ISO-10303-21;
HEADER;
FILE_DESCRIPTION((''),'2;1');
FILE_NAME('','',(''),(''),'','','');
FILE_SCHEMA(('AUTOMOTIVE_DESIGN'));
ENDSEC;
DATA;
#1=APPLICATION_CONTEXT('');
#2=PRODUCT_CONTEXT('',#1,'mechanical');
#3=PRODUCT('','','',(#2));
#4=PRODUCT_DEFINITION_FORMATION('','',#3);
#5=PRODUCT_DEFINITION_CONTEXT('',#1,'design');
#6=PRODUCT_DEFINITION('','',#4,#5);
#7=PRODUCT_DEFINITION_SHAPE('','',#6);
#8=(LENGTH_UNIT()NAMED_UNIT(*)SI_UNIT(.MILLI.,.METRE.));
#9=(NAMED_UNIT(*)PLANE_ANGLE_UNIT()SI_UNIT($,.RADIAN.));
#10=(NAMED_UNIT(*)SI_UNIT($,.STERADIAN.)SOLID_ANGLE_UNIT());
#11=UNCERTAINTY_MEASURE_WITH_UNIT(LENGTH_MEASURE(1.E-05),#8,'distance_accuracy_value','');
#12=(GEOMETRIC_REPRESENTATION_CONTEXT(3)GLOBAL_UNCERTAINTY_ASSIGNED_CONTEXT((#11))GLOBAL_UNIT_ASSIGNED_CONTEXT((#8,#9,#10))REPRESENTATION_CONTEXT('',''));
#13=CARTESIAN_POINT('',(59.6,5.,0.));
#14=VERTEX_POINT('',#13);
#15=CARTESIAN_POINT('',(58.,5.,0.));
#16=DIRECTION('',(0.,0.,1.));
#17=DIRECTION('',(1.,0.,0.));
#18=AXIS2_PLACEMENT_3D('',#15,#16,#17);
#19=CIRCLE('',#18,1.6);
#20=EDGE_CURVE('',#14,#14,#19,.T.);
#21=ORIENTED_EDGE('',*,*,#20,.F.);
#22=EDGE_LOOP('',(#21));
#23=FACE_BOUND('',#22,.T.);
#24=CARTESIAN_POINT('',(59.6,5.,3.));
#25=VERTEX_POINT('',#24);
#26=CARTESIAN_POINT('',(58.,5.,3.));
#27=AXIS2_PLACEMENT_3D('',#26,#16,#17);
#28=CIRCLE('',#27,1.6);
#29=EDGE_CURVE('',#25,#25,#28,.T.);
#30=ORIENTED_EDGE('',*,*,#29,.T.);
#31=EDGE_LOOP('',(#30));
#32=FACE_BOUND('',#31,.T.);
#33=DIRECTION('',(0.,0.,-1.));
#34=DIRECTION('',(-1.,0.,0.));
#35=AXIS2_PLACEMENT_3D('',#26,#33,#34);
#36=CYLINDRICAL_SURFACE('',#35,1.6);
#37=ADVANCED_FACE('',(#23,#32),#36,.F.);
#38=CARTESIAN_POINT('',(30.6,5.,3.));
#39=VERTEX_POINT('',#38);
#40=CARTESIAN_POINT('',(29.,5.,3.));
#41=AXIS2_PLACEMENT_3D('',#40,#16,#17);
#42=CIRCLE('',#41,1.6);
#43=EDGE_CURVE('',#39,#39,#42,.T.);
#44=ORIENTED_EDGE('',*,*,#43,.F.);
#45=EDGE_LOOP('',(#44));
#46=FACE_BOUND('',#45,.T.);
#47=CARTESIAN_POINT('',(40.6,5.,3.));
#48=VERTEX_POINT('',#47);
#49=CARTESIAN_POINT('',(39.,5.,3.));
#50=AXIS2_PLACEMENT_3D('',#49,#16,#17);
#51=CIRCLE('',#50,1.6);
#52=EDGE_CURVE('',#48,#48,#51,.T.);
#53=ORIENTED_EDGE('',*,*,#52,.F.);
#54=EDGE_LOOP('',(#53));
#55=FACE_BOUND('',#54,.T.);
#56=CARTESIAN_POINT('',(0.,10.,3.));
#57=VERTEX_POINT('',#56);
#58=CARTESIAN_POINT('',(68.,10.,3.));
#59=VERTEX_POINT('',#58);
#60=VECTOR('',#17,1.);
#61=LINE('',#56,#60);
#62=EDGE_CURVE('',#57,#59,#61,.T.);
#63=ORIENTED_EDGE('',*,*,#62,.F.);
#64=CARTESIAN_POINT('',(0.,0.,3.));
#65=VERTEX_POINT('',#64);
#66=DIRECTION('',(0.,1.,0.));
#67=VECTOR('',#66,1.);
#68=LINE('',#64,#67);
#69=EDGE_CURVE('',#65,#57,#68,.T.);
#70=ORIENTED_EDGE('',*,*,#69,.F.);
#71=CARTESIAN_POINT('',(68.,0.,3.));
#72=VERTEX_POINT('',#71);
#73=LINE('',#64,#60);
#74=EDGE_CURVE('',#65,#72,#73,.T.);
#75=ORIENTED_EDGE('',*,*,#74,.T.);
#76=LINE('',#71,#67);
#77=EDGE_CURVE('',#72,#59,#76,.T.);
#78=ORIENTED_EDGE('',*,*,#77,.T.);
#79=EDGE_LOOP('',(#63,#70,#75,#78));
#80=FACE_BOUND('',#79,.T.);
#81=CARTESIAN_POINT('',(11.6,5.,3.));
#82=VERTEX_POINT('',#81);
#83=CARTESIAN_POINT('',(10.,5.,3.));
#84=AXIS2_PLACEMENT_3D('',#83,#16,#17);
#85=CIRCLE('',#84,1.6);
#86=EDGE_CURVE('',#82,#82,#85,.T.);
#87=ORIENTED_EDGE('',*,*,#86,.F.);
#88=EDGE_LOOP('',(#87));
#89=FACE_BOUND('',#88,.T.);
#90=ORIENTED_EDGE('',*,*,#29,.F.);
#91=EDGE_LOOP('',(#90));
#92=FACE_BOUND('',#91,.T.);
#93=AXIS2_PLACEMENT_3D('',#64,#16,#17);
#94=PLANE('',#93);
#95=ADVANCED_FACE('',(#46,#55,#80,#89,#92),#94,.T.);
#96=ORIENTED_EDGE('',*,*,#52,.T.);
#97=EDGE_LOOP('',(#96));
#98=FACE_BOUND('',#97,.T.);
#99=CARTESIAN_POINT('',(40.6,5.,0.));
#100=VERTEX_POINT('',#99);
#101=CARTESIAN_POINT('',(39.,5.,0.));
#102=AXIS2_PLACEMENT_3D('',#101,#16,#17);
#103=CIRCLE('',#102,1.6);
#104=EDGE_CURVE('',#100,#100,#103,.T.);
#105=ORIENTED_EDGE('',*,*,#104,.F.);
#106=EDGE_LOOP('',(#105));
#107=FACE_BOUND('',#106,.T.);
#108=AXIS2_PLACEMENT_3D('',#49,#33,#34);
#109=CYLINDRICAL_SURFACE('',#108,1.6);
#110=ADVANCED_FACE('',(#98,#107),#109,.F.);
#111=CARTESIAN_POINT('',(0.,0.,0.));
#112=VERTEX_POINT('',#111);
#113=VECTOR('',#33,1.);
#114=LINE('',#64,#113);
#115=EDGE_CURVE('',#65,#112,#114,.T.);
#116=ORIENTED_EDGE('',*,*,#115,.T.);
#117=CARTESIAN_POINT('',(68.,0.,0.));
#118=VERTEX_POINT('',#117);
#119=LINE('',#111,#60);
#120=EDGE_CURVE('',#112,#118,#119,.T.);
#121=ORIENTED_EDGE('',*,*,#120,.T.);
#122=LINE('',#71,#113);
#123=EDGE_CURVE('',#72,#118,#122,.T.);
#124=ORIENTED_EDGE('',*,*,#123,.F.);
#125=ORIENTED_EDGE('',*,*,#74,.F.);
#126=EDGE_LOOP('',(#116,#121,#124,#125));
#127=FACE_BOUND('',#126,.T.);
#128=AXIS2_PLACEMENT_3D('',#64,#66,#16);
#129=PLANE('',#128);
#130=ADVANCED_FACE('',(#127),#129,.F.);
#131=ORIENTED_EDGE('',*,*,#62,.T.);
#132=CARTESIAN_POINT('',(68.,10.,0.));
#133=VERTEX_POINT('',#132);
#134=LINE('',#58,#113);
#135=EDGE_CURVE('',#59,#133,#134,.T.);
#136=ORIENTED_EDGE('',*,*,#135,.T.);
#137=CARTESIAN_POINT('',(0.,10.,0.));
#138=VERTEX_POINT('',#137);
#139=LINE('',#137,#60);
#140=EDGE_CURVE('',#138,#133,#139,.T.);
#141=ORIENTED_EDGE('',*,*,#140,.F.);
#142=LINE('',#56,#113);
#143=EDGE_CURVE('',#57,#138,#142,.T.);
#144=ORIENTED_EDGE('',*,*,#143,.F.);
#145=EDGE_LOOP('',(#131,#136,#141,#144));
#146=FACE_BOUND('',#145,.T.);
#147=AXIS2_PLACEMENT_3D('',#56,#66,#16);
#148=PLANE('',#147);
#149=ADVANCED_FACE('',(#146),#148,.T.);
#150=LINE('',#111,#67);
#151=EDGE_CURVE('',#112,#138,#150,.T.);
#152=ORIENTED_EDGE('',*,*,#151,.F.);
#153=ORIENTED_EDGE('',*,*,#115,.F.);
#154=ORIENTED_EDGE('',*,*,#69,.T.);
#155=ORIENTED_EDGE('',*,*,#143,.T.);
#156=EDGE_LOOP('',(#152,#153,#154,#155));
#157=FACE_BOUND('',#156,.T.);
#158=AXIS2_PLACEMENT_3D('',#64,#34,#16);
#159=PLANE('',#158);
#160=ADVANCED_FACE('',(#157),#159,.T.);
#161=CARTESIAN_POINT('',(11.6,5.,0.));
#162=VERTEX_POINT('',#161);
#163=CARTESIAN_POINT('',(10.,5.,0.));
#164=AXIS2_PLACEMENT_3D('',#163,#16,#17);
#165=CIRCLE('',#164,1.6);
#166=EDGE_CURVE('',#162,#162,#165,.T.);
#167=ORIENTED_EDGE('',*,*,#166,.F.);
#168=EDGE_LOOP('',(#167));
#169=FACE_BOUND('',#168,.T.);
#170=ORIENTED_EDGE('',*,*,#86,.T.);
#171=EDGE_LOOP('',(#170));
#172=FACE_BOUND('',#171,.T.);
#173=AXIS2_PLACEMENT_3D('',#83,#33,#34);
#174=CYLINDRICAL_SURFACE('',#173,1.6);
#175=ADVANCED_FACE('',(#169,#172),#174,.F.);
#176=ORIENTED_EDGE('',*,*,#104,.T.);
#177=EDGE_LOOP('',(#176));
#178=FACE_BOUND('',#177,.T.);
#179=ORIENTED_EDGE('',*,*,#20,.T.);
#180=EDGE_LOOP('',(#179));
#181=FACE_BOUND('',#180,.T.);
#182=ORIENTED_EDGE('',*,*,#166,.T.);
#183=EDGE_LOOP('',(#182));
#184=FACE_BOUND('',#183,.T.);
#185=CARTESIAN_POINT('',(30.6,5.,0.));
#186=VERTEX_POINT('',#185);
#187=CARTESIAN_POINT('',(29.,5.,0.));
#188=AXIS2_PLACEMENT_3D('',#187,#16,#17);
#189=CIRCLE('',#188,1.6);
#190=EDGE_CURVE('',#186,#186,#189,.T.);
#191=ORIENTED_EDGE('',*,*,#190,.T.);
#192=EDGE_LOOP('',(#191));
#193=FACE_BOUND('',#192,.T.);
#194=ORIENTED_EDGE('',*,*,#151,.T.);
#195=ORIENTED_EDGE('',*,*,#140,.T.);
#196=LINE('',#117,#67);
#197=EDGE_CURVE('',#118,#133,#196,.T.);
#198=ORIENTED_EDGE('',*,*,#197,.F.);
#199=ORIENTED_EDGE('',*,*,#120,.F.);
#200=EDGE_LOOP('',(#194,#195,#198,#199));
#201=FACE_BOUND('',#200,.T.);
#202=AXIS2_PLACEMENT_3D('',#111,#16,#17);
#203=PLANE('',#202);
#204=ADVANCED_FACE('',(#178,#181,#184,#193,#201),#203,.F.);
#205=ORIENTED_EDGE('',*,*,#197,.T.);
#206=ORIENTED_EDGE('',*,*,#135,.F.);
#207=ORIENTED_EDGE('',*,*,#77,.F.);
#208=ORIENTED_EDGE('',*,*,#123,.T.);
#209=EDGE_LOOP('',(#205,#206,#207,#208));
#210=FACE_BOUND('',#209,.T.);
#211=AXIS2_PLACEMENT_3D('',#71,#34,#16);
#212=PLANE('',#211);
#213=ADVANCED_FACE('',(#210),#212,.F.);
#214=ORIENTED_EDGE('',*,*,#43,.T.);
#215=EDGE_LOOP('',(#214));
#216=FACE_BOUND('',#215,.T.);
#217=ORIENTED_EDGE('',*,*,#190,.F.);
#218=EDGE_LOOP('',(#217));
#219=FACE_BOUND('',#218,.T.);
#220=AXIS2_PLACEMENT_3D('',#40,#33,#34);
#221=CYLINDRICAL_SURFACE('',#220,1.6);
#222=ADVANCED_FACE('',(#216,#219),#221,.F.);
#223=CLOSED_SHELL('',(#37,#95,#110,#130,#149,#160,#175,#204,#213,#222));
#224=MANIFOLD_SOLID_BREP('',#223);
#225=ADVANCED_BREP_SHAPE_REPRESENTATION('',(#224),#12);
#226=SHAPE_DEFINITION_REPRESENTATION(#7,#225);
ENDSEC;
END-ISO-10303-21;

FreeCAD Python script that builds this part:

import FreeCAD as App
import Part
import Sketcher
from FreeCAD import Vector
Q = App.Units.Quantity


def add_polygon(sketch, points):
    """Adds a closed chain of lines whose ends are joined by coincident constraints."""
    first, n = sketch.GeometryCount, len(points)
    for a, b in zip(points, points[1:] + points[:1]):
        sketch.addGeometry(Part.LineSegment(App.Vector(*a, 0), App.Vector(*b, 0)), False)
    for i in range(n):
        sketch.addConstraint(Sketcher.Constraint("Coincident", first + i, 2, first + (i + 1) % n, 1))

doc = App.newDocument("Part")
body = doc.addObject("PartDesign::Body", "Body")

# Sketch on XY plane
sketch1 = doc.addObject("Sketcher::SketchObject", "Sketch")
body.addObject(sketch1)
sketch1.AttachmentSupport = (doc.XY_Plane, [""])
sketch1.MapMode = "FlatFace"
add_polygon(sketch1, [(0, 10), (0, 0), (68, 0), (68, 10)])  # lines 0-3
sketch1.addGeometry(Part.Circle(Vector(10, 5, 0), Vector(0, 0, 1), 1.6), False)  # 4
sketch1.addGeometry(Part.Circle(Vector(29, 5, 0), Vector(0, 0, 1), 1.6), False)  # 5
sketch1.addGeometry(Part.Circle(Vector(39, 5, 0), Vector(0, 0, 1), 1.6), False)  # 6
sketch1.addGeometry(Part.Circle(Vector(58, 5, 0), Vector(0, 0, 1), 1.6), False)  # 7
sketch1.addConstraint(Sketcher.Constraint("Vertical", 0))
sketch1.addConstraint(Sketcher.Constraint("Horizontal", 1))
sketch1.addConstraint(Sketcher.Constraint("Vertical", 2))
sketch1.addConstraint(Sketcher.Constraint("Horizontal", 3))
sketch1.addConstraint(Sketcher.Constraint("Coincident", 0, 2, -1, 1))
sketch1.addConstraint(Sketcher.Constraint("Equal", 4, 5))
sketch1.addConstraint(Sketcher.Constraint("Equal", 5, 6))
sketch1.addConstraint(Sketcher.Constraint("Equal", 6, 7))
sketch1.addConstraint(Sketcher.Constraint("Horizontal", 4, 3, 5, 3))
sketch1.addConstraint(Sketcher.Constraint("Horizontal", 5, 3, 6, 3))
sketch1.addConstraint(Sketcher.Constraint("Horizontal", 6, 3, 7, 3))
sketch1.addConstraint(Sketcher.Constraint("Diameter", 4, Q("3.2 mm")))
sketch1.addConstraint(Sketcher.Constraint("DistanceX", 1, 1, 1, 2, Q("68 mm")))
sketch1.addConstraint(Sketcher.Constraint("DistanceY", 0, 2, 0, 1, Q("10 mm")))
sketch1.addConstraint(Sketcher.Constraint("DistanceX", -1, 1, 4, 3, Q("10 mm")))
sketch1.addConstraint(Sketcher.Constraint("DistanceY", -1, 1, 4, 3, Q("5 mm")))
sketch1.addConstraint(Sketcher.Constraint("DistanceX", -1, 1, 5, 3, Q("29 mm")))
sketch1.addConstraint(Sketcher.Constraint("DistanceX", -1, 1, 6, 3, Q("39 mm")))
sketch1.addConstraint(Sketcher.Constraint("DistanceX", -1, 1, 7, 3, Q("58 mm")))
pad1 = doc.addObject("PartDesign::Pad", "Pad")
body.addObject(pad1)
pad1.Profile = sketch1
pad1.Length = 3

doc.recompute()
